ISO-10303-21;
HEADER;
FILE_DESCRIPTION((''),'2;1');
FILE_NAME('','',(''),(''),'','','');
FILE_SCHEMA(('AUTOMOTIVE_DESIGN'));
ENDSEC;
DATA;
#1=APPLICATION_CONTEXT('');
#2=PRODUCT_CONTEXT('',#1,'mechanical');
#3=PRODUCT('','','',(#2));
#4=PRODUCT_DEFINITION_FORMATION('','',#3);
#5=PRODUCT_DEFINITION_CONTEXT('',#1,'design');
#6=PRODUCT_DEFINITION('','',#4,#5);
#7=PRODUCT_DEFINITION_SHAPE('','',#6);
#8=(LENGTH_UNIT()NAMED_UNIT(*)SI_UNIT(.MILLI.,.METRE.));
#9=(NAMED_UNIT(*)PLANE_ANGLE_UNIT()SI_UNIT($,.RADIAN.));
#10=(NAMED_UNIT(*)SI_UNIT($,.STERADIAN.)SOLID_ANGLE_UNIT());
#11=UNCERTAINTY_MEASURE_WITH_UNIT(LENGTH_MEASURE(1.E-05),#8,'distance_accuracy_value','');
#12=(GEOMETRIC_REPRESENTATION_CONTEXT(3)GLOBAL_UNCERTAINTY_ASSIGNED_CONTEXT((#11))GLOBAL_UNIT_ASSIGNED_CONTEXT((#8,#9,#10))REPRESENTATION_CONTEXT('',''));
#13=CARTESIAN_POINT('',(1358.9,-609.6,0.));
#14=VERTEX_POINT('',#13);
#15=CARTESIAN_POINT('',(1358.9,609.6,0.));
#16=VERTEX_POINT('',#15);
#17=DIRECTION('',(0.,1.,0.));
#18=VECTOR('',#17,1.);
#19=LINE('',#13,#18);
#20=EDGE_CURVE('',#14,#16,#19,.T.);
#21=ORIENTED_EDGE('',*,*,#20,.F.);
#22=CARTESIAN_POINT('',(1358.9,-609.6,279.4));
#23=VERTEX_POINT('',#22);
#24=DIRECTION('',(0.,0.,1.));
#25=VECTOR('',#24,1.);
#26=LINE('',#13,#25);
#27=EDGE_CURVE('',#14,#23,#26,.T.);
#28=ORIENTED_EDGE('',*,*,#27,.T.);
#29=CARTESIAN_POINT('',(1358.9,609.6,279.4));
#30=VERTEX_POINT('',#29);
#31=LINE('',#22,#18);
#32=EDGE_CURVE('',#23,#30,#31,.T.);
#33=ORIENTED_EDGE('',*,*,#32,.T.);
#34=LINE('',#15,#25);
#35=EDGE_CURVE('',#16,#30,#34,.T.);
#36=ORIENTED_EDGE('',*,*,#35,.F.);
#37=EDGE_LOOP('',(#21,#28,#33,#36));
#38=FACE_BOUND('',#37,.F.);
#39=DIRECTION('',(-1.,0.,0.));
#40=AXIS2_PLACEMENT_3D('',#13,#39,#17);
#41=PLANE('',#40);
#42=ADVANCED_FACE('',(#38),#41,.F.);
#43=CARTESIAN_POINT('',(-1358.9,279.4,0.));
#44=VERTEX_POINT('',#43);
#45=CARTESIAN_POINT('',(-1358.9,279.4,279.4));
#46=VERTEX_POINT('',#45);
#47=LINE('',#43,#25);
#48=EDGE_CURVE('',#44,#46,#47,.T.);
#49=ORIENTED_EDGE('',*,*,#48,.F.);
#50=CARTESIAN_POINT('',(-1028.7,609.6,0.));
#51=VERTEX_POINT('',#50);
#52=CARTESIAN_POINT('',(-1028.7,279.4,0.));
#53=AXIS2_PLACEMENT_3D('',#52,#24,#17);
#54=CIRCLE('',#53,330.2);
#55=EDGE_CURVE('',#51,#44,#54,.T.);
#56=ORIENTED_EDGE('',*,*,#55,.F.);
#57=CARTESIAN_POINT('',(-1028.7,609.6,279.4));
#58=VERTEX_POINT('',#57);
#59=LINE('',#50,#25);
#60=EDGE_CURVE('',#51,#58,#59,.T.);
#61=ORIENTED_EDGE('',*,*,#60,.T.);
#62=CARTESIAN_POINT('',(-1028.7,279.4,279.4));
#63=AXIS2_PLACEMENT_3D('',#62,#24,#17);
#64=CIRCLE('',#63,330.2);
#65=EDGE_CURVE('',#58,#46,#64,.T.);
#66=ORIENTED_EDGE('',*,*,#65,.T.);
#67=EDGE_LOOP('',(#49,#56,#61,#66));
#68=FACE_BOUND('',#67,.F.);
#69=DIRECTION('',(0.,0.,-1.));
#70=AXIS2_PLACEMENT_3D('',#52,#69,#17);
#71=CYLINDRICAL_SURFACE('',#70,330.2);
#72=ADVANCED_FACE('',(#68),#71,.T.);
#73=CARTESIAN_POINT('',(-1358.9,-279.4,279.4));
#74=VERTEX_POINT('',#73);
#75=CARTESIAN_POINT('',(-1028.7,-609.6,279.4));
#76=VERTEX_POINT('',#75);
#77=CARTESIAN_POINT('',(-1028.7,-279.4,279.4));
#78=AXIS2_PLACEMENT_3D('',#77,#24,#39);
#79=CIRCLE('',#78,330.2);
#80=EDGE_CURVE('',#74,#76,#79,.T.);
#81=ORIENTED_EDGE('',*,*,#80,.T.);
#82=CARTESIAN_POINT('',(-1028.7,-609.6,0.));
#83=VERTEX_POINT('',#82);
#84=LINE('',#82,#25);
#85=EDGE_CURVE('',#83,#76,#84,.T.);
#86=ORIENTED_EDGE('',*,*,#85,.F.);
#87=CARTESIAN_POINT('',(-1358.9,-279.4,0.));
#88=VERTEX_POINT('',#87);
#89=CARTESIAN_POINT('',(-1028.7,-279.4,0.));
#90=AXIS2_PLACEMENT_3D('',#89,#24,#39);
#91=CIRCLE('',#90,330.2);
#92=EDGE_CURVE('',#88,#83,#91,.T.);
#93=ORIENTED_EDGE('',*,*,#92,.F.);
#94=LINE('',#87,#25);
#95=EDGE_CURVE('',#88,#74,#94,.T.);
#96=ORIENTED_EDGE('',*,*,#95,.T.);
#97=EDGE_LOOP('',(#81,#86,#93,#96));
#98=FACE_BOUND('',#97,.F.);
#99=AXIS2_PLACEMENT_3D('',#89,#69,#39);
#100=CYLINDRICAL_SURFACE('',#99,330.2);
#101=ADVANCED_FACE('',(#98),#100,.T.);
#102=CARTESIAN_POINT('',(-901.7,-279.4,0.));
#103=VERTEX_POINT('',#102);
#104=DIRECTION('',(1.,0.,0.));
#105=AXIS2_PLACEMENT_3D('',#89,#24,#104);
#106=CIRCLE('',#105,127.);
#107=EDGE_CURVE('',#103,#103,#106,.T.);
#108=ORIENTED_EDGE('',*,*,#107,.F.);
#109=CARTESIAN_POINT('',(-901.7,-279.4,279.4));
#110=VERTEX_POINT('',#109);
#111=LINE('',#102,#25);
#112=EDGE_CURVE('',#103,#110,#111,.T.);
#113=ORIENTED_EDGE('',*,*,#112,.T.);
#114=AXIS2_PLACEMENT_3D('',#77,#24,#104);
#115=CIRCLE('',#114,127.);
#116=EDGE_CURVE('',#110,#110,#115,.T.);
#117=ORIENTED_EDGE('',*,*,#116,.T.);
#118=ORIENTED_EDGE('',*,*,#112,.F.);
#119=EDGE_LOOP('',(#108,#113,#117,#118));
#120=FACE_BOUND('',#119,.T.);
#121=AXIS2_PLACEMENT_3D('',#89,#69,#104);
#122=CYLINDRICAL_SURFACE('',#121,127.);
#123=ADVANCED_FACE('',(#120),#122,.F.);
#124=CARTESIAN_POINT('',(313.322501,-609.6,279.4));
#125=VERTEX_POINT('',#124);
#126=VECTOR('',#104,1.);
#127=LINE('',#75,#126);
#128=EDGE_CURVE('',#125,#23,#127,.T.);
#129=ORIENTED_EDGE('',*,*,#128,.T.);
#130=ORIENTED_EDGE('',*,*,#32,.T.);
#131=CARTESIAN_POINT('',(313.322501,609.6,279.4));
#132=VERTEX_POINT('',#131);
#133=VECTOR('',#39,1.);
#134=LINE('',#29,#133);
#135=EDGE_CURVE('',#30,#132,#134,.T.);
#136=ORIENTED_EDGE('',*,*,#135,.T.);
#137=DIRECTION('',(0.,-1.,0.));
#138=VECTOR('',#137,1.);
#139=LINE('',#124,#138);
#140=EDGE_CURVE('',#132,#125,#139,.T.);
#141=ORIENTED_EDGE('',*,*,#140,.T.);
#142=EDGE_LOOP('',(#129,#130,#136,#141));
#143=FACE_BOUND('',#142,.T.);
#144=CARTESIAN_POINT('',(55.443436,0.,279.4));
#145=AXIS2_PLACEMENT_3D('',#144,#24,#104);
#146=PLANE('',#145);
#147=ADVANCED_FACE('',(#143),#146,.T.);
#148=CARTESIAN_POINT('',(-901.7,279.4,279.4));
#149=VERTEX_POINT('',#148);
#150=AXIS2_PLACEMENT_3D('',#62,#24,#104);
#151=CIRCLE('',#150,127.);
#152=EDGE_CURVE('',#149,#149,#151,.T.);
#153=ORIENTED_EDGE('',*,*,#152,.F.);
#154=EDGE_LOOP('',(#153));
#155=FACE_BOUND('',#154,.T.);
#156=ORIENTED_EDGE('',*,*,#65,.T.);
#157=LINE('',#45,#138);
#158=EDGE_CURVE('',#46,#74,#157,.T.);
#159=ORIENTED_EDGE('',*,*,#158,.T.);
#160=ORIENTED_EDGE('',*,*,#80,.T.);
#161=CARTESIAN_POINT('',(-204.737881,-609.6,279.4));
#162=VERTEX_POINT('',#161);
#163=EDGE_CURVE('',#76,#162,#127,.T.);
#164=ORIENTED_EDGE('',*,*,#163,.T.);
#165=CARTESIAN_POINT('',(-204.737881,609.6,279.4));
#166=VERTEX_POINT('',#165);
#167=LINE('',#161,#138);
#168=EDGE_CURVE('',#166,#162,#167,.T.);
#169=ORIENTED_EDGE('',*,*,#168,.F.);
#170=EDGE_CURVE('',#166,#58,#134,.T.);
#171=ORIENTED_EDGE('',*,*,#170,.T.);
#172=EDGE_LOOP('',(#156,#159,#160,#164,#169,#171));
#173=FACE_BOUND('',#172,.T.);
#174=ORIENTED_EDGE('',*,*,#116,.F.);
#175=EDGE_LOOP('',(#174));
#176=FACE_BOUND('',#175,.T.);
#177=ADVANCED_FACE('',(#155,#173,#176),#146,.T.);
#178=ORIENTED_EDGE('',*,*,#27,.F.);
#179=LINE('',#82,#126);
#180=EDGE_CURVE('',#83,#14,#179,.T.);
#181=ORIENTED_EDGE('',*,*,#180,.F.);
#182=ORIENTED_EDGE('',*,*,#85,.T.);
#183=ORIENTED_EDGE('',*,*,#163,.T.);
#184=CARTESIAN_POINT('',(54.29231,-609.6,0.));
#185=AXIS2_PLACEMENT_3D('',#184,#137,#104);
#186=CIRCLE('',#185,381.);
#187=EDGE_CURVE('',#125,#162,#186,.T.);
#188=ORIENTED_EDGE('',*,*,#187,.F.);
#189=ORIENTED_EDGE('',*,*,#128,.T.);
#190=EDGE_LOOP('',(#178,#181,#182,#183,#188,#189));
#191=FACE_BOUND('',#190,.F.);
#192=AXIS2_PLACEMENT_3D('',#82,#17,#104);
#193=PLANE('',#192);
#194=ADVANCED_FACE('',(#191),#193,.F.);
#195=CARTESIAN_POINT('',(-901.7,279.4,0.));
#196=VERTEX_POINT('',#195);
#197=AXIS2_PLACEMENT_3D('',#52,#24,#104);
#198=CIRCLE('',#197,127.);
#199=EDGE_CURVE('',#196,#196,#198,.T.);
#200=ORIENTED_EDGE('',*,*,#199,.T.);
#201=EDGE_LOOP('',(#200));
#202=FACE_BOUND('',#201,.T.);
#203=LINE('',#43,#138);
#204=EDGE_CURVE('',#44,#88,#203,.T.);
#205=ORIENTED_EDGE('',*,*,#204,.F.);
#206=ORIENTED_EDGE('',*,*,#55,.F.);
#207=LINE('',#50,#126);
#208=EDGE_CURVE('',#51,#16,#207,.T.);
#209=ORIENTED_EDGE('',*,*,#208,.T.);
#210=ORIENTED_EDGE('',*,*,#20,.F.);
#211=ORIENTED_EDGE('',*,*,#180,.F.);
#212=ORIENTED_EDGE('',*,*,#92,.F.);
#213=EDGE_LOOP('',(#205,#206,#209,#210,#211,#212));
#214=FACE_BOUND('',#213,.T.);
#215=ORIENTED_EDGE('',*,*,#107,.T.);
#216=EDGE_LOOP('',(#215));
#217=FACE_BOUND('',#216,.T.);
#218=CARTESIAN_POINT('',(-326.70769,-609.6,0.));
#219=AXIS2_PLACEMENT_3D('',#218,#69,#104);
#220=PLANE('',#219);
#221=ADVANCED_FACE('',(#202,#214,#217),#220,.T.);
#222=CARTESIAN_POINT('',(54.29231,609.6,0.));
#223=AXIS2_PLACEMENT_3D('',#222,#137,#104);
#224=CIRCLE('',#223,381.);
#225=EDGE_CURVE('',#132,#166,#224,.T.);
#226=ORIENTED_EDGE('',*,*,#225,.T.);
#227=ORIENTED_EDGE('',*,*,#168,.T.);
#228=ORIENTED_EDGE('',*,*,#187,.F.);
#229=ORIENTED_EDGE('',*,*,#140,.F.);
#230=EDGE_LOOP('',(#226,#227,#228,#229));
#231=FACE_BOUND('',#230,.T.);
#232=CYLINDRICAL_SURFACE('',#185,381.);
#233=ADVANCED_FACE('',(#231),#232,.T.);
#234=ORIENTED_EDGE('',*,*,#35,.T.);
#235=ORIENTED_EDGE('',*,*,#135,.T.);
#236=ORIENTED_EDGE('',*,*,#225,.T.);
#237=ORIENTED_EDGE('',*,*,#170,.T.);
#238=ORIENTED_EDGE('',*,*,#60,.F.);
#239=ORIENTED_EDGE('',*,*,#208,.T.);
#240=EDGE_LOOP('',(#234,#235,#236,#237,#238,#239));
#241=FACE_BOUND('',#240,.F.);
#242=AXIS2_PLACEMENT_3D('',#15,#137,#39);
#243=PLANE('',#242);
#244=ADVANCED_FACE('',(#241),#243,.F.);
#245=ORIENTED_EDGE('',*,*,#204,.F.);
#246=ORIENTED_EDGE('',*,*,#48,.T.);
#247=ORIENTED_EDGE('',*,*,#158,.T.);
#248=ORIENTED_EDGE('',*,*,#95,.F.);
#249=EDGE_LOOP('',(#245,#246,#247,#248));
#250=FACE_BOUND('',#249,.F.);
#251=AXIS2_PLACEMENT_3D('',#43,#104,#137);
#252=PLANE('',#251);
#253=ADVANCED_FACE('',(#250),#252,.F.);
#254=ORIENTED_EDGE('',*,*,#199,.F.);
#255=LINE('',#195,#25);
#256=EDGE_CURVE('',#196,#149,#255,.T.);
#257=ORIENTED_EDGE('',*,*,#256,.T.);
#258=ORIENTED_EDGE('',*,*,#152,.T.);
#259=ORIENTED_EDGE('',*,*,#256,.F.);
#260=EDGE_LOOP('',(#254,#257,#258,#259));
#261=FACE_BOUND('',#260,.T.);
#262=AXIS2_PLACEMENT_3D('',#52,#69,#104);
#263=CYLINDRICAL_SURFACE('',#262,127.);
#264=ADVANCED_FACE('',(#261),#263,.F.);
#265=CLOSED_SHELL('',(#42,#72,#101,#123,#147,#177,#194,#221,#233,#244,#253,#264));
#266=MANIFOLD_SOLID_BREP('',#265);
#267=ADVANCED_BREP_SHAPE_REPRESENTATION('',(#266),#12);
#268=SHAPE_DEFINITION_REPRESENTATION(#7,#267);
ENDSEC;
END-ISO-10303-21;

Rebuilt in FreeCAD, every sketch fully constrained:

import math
import FreeCAD as App
import Part
import Sketcher

V = App.Vector
Q = App.Units.Quantity

doc = App.newDocument("Part")
body = doc.addObject("PartDesign::Body", "Body")

sketch1 = body.newObject("Sketcher::SketchObject", "Sketch")
sketch1.AttachmentSupport = (doc.getObject("XY_Plane"), [""])
sketch1.MapMode = "FlatFace"
sketch1.addGeometry(Part.ArcOfCircle(Part.Circle(V(-1029, -279, 0), V(0, 0, 1), 330), math.radians(180), math.radians(270)), False)
sketch1.addGeometry(Part.LineSegment(V(-1029, -610, 0), V(1359, -610, 0)), False)
sketch1.addGeometry(Part.LineSegment(V(1359, -610, 0), V(1359, 610, 0)), False)
sketch1.addGeometry(Part.LineSegment(V(1359, 610, 0), V(-1029, 610, 0)), False)
sketch1.addGeometry(Part.ArcOfCircle(Part.Circle(V(-1029, 279, 0), V(0, 0, 1), 330), math.radians(90), math.radians(180)), False)
sketch1.addGeometry(Part.LineSegment(V(-1359, 279, 0), V(-1359, -279, 0)), False)
sketch1.addGeometry(Part.Circle(V(-1029, -279, 0), V(0, 0, 1), 127), False)
sketch1.addGeometry(Part.Circle(V(-1029, 279, 0), V(0, 0, 1), 127), False)
sketch1.addConstraint(Sketcher.Constraint("Tangent", 0, 2, 1, 1))
sketch1.addConstraint(Sketcher.Constraint("Coincident", 1, 2, 2, 1))
sketch1.addConstraint(Sketcher.Constraint("Coincident", 2, 2, 3, 1))
sketch1.addConstraint(Sketcher.Constraint("Tangent", 3, 2, 4, 1))
sketch1.addConstraint(Sketcher.Constraint("Tangent", 4, 2, 5, 1))
sketch1.addConstraint(Sketcher.Constraint("Tangent", 5, 2, 0, 1))
sketch1.addConstraint(Sketcher.Constraint("Horizontal", 1))
sketch1.addConstraint(Sketcher.Constraint("Vertical", 2))
sketch1.addConstraint(Sketcher.Constraint("Horizontal", 3))
sketch1.addConstraint(Sketcher.Constraint("Vertical", 5))
sketch1.addConstraint(Sketcher.Constraint("Coincident", 6, 3, 0, 3))
sketch1.addConstraint(Sketcher.Constraint("Coincident", 7, 3, 4, 3))
sketch1.addConstraint(Sketcher.Constraint("Equal", 0, 4))
sketch1.addConstraint(Sketcher.Constraint("Equal", 6, 7))
sketch1.addConstraint(Sketcher.Constraint("Diameter", 6, Q("10 in")))
sketch1.addConstraint(Sketcher.Constraint("Radius", 0, Q("13 in")))
sketch1.addConstraint(Sketcher.Constraint("DistanceX", 1, 1, 1, 2, Q("94 in")))
sketch1.addConstraint(Sketcher.Constraint("DistanceY", 2, 1, 2, 2, Q("48 in")))
sketch1.addConstraint(Sketcher.Constraint("DistanceY", 0, 3, -1, 1, Q("11 in")))
sketch1.addConstraint(Sketcher.Constraint("DistanceX", 0, 3, -1, 1, Q("40.5 in")))
pad1 = body.newObject("PartDesign::Pad", "Pad")
pad1.Profile = sketch1
pad1.Length = Q("11 in")

sketch2 = body.newObject("Sketcher::SketchObject", "Sketch001")
sketch2.AttachmentSupport = (doc.getObject("XZ_Plane"), [""])
sketch2.MapMode = "FlatFace"
sketch2.AttachmentOffset = App.Placement(V(0, 0, 24 * 25.4), App.Rotation())
sketch2.addGeometry(Part.LineSegment(V(-327, 0, 0), V(-187, 0, 0)), False)
sketch2.addGeometry(Part.ArcOfCircle(Part.Circle(V(54, 0, 0), V(0, 0, 1), 241), math.radians(0), math.radians(180)), False)
sketch2.addGeometry(Part.LineSegment(V(296, 0, 0), V(435, 0, 0)), False)
sketch2.addGeometry(Part.ArcOfCircle(Part.Circle(V(54, 0, 0), V(0, 0, 1), 381), math.radians(0), math.radians(180)), False)
sketch2.addConstraint(Sketcher.Constraint("Coincident", 0, 2, 1, 2))
sketch2.addConstraint(Sketcher.Constraint("Coincident", 1, 1, 2, 1))
sketch2.addConstraint(Sketcher.Constraint("Coincident", 2, 2, 3, 1))
sketch2.addConstraint(Sketcher.Constraint("Coincident", 3, 2, 0, 1))
sketch2.addConstraint(Sketcher.Constraint("Horizontal", 0))
sketch2.addConstraint(Sketcher.Constraint("Horizontal", 2))
sketch2.addConstraint(Sketcher.Constraint("Coincident", 3, 3, 1, 3))
sketch2.addConstraint(Sketcher.Constraint("PointOnObject", 1, 3, -1))
sketch2.addConstraint(Sketcher.Constraint("PointOnObject", 0, 2, -1))
sketch2.addConstraint(Sketcher.Constraint("PointOnObject", 1, 1, -1))
sketch2.addConstraint(Sketcher.Constraint("Radius", 3, Q("15 in")))
sketch2.addConstraint(Sketcher.Constraint("Radius", 1, Q("9.5 in")))
sketch2.addConstraint(Sketcher.Constraint("DistanceX", -1, 1, 1, 3, 54.29231))
pad2 = body.newObject("PartDesign::Pad", "Pad001")
pad2.Profile = sketch2
pad2.Length = Q("48 in")
pad2.Reversed = True

doc.recompute()
